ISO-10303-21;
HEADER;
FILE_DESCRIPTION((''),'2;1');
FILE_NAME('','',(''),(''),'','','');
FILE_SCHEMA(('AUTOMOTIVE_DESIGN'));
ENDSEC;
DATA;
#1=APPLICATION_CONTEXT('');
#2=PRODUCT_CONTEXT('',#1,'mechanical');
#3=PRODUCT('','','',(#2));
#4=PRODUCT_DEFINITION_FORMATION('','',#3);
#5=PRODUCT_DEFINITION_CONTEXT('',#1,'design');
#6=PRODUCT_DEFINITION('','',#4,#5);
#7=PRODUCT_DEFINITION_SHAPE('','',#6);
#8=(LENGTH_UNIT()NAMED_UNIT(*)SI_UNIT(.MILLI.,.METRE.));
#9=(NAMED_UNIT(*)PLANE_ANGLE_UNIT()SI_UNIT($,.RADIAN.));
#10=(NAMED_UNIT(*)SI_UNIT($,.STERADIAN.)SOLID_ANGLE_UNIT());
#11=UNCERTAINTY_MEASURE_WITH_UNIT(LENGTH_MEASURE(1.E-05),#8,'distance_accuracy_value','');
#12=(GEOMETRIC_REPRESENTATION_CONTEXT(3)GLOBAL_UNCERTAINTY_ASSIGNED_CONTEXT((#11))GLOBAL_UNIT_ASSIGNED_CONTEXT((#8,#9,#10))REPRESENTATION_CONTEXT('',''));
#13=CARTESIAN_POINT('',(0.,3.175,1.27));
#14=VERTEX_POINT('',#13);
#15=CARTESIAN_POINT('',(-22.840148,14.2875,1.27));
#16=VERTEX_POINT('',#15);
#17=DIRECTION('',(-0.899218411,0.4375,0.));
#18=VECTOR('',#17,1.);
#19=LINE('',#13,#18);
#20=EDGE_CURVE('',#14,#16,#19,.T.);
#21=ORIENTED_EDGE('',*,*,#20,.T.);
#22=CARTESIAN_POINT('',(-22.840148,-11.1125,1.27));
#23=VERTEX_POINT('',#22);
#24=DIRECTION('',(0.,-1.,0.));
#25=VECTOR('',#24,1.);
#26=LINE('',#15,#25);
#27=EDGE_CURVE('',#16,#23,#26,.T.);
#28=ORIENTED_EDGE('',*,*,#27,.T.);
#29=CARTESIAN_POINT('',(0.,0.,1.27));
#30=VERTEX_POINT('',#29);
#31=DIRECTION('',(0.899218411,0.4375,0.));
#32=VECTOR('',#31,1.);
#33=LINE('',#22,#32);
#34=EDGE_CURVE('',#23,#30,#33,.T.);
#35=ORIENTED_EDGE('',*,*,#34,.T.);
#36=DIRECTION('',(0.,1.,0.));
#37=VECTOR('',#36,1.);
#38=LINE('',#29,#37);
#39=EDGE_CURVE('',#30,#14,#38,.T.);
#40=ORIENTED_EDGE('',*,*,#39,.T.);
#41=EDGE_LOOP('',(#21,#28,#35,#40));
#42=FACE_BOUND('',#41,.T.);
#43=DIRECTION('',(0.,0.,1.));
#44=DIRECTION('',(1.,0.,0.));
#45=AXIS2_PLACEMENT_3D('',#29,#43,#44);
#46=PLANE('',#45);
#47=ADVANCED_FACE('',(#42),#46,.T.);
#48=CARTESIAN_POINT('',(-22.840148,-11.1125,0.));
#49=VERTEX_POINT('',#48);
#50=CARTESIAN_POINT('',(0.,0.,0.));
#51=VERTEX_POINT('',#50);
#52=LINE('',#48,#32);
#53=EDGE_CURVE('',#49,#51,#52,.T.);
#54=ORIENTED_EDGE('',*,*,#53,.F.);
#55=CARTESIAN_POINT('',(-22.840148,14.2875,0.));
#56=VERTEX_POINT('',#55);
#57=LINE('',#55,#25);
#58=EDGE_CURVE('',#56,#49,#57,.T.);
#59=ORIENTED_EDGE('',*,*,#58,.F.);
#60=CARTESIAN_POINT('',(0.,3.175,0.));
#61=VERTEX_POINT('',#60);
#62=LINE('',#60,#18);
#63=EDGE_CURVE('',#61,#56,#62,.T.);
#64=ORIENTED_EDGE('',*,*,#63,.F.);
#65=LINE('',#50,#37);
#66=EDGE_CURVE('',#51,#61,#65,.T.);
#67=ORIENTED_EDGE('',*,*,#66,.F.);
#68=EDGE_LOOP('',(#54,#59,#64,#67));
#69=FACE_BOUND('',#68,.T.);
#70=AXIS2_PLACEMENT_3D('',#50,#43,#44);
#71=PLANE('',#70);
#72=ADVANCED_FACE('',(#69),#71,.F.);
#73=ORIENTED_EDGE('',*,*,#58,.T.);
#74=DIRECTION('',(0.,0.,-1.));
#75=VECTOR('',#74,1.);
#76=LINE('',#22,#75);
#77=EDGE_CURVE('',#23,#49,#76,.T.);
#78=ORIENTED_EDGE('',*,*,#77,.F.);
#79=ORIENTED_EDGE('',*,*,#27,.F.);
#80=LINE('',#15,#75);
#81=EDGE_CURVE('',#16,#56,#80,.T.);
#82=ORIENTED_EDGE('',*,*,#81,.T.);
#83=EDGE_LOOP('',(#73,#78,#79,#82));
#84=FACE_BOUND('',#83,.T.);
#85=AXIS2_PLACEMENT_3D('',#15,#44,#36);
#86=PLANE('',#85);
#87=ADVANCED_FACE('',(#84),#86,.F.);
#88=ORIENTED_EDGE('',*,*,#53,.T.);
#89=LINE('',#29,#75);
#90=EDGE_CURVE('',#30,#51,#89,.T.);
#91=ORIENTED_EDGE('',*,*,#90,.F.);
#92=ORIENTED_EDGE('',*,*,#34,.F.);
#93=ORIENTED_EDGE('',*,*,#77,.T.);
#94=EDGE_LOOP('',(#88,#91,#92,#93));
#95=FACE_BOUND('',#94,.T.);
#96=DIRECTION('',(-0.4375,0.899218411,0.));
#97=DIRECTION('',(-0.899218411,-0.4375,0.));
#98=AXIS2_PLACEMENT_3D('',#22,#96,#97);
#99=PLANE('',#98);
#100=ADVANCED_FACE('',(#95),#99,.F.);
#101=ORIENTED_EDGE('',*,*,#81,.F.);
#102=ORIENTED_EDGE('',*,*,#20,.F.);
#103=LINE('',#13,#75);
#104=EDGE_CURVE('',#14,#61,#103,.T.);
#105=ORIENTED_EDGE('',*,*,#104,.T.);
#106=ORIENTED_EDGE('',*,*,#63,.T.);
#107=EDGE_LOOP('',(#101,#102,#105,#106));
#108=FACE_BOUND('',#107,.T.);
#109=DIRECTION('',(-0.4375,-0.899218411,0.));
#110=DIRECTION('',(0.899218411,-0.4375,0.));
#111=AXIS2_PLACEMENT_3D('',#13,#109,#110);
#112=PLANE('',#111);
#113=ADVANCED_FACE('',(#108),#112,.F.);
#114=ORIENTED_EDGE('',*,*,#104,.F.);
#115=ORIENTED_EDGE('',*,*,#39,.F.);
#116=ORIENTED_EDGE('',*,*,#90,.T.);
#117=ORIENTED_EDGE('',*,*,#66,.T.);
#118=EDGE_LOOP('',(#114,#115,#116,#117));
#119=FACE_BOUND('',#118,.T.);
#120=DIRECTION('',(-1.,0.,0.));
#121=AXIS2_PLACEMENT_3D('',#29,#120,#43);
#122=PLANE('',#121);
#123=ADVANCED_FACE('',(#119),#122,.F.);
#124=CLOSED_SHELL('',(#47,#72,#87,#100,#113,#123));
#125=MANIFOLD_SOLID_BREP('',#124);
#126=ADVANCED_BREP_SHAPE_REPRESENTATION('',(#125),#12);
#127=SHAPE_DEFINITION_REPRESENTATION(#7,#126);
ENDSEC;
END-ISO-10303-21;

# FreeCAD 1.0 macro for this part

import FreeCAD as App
import Part
import Sketcher
from FreeCAD import Vector
Q = App.Units.Quantity


def add_polygon(sketch, points):
    """Adds a closed chain of lines whose ends are joined by coincident constraints."""
    first, n = sketch.GeometryCount, len(points)
    for a, b in zip(points, points[1:] + points[:1]):
        sketch.addGeometry(Part.LineSegment(App.Vector(*a, 0), App.Vector(*b, 0)), False)
    for i in range(n):
        sketch.addConstraint(Sketcher.Constraint("Coincident", first + i, 2, first + (i + 1) % n, 1))

doc = App.newDocument("Part")
body = doc.addObject("PartDesign::Body", "Body")

# Sketch on XY plane
sketch1 = body.newObject("Sketcher::SketchObject", "Sketch")
sketch1.AttachmentSupport = (doc.getObject("XY_Plane"), [""])
sketch1.MapMode = "FlatFace"
add_polygon(sketch1, [(0, 0), (0, 3.2), (-22.8, 14.3), (-22.8, -11.1)])  # lines 0-3
sketch1.addConstraint([
    Sketcher.Constraint("Vertical", 0),
    Sketcher.Constraint("Vertical", 2),
    Sketcher.Constraint("Coincident", 3, 2, -1, 1),
    Sketcher.Constraint("Equal", 1, 3),
    Sketcher.Constraint("DistanceY", 2, 2, 2, 1, Q("1 in")),
    Sketcher.Constraint("Distance", 1, Q("1 in")),
    Sketcher.Constraint("DistanceY", 0, 1, 0, 2, Q("0.125 in")),
])
pad1 = body.newObject("PartDesign::Pad", "Pad")
pad1.Profile = sketch1
pad1.Length = Q("0.05 in")

doc.recompute()
